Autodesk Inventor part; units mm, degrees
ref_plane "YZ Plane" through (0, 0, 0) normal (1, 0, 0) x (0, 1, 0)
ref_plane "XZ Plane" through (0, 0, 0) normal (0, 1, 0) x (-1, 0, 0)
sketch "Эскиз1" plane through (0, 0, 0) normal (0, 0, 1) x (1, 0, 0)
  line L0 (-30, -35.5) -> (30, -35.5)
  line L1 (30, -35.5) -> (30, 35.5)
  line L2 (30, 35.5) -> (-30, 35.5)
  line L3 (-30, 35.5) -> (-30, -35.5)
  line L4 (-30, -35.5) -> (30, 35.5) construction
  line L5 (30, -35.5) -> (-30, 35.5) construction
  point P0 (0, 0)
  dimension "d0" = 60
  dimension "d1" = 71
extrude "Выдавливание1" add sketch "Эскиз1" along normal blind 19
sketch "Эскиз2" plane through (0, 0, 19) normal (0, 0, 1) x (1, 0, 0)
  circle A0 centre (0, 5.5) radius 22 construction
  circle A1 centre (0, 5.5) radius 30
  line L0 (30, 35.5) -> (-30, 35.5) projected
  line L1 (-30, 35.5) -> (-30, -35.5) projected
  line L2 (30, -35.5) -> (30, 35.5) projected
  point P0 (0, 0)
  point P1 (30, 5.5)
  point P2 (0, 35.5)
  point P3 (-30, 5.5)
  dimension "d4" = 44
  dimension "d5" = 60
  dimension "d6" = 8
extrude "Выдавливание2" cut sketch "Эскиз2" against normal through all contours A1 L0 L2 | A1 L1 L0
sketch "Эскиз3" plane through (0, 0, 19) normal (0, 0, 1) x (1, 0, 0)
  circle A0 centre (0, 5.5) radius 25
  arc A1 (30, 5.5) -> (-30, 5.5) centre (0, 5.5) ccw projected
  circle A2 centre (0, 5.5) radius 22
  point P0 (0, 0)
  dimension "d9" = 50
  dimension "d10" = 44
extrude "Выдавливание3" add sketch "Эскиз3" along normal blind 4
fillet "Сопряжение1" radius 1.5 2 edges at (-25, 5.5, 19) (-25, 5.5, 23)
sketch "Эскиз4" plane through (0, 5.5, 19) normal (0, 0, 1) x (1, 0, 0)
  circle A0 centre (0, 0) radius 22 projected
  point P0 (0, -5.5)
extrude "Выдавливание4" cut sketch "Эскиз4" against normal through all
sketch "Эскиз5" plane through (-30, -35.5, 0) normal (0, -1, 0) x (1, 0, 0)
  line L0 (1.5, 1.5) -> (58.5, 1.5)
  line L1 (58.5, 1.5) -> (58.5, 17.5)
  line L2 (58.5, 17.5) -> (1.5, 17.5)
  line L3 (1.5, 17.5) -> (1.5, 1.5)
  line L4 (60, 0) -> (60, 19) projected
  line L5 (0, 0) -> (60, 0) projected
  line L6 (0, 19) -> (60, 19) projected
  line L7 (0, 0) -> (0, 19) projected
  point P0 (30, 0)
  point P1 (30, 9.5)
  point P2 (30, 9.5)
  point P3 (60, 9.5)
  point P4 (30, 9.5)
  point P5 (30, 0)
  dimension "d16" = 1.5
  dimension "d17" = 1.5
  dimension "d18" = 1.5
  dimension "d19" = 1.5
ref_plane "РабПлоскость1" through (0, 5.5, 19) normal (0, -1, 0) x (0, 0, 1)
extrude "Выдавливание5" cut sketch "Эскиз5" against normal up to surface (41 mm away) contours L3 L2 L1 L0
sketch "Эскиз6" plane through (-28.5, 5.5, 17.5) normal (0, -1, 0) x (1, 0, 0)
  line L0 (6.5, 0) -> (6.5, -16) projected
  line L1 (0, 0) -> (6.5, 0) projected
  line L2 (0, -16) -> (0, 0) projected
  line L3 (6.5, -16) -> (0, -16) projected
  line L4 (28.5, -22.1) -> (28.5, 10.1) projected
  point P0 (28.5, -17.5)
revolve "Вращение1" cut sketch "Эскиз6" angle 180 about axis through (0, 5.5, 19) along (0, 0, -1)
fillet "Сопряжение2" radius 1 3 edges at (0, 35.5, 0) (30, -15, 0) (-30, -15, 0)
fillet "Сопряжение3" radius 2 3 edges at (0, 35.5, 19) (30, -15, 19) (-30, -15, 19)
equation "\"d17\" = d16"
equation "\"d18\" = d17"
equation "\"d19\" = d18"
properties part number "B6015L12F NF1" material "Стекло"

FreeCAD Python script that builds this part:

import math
import FreeCAD as App
import Part
import Sketcher
from FreeCAD import Vector


def edges_at(feature, points):
    """Names of the edges that pass closest to the given points."""
    edges = feature.Shape.Edges
    near = lambda p: min(range(len(edges)), key=lambda i: edges[i].distToShape(Part.Vertex(*p))[0])
    return sorted({f"Edge{near(p) + 1}" for p in points})

doc = App.newDocument("Part")
body = doc.addObject("PartDesign::Body", "Body")

# Sketch on XY plane
sketch1 = body.newObject("Sketcher::SketchObject", "Sketch")
sketch1.AttachmentSupport = (doc.getObject("XY_Plane"), [""])
sketch1.MapMode = "FlatFace"
sketch1.addGeometry([
    Part.LineSegment(Vector(-30, 36, 0), Vector(-30, -36, 0)),
    Part.LineSegment(Vector(-30, -36, 0), Vector(30, -36, 0)),
    Part.LineSegment(Vector(30, -36, 0), Vector(30, 36, 0)),
    Part.LineSegment(Vector(30, 36, 0), Vector(-30, 36, 0)),
], False)
sketch1.addConstraint([
    Sketcher.Constraint("Coincident", 0, 2, 1, 1),
    Sketcher.Constraint("Coincident", 1, 2, 2, 1),
    Sketcher.Constraint("Coincident", 2, 2, 3, 1),
    Sketcher.Constraint("Coincident", 3, 2, 0, 1),
    Sketcher.Constraint("Vertical", 0),
    Sketcher.Constraint("Horizontal", 1),
    Sketcher.Constraint("Vertical", 2),
    Sketcher.Constraint("Horizontal", 3),
    Sketcher.Constraint("Symmetric", 0, 2, 2, 2, -1, 1),
    Sketcher.Constraint("DistanceX", 1, 1, 1, 2, 60.0),
    Sketcher.Constraint("DistanceY", 0, 2, 0, 1, 71.0),
])
pad1 = body.newObject("PartDesign::Pad", "Pad")
pad1.Profile = sketch1
pad1.Length = 19

# Sketch on XY plane
sketch2 = body.newObject("Sketcher::SketchObject", "Sketch001")
sketch2.AttachmentSupport = (doc.getObject("XY_Plane"), [""])
sketch2.MapMode = "FlatFace"
sketch2.AttachmentOffset = App.Placement(Vector(0, 0, 19), App.Rotation())
sketch2.addGeometry([
    Part.ArcOfCircle(Part.Circle(Vector(0, 6, 0), Vector(0, 0, 1), 30), math.radians(0), math.radians(90)),  # 0
    Part.LineSegment(Vector(30, 6, 0), Vector(30, 36, 0)),  # 1
    Part.LineSegment(Vector(30, 36, 0), Vector(0, 36, 0)),  # 2
    Part.ArcOfCircle(Part.Circle(Vector(0, 6, 0), Vector(0, 0, 1), 30), math.radians(90), math.radians(180)),  # 3
    Part.LineSegment(Vector(0, 36, 0), Vector(-30, 36, 0)),  # 4
    Part.LineSegment(Vector(-30, 36, 0), Vector(-30, 6, 0)),  # 5
], False)
sketch2.addConstraint([
    Sketcher.Constraint("Tangent", 0, 1, 1, 1),
    Sketcher.Constraint("Coincident", 1, 2, 2, 1),
    Sketcher.Constraint("Tangent", 2, 2, 0, 2),
    Sketcher.Constraint("Tangent", 3, 1, 4, 1),
    Sketcher.Constraint("Coincident", 4, 2, 5, 1),
    Sketcher.Constraint("Tangent", 5, 2, 3, 2),
    Sketcher.Constraint("Vertical", 1),
    Sketcher.Constraint("Horizontal", 2),
    Sketcher.Constraint("Horizontal", 4),
    Sketcher.Constraint("Vertical", 5),
    Sketcher.Constraint("Coincident", 3, 3, 0, 3),
    Sketcher.Constraint("Equal", 0, 3),
    Sketcher.Constraint("PointOnObject", 0, 3, -2),
    Sketcher.Constraint("Radius", 0, 30.0),
    Sketcher.Constraint("DistanceY", -1, 1, 0, 3, 5.5),
])
pocket1 = body.newObject("PartDesign::Pocket", "Pocket")
pocket1.Profile = sketch2
pocket1.Type = "ThroughAll"

# Sketch on XY plane
sketch3 = body.newObject("Sketcher::SketchObject", "Sketch002")
sketch3.AttachmentSupport = (doc.getObject("XY_Plane"), [""])
sketch3.MapMode = "FlatFace"
sketch3.AttachmentOffset = App.Placement(Vector(0, 0, 19), App.Rotation())
sketch3.addGeometry([
    Part.Circle(Vector(0, 6, 0), Vector(0, 0, 1), 25),
    Part.Circle(Vector(0, 6, 0), Vector(0, 0, 1), 22),
], False)
sketch3.addConstraint([
    Sketcher.Constraint("Coincident", 1, 3, 0, 3),
    Sketcher.Constraint("PointOnObject", 0, 3, -2),
    Sketcher.Constraint("Diameter", 0, 50.0),
    Sketcher.Constraint("Diameter", 1, 44.0),
    Sketcher.Constraint("DistanceY", -1, 1, 0, 3, 5.5),
])
pad2 = body.newObject("PartDesign::Pad", "Pad001")
pad2.Profile = sketch3
pad2.Length = 4
doc.recompute()

fillet = body.newObject("PartDesign::Fillet", "Fillet")
fillet.Base = (pad2, edges_at(pad2, [(-25, 5.5, 19), (-25, 5.5, 23)]))
fillet.Radius = 1.5

# Sketch on XY plane
sketch4 = body.newObject("Sketcher::SketchObject", "Sketch003")
sketch4.AttachmentSupport = (doc.getObject("XY_Plane"), [""])
sketch4.MapMode = "FlatFace"
sketch4.AttachmentOffset = App.Placement(Vector(0, 0, 19), App.Rotation())
sketch4.addGeometry(Part.Circle(Vector(0, 6, 0), Vector(0, 0, 1), 22), False)
sketch4.addConstraint([
    Sketcher.Constraint("PointOnObject", 0, 3, -2),
    Sketcher.Constraint("Diameter", 0, 44.0),
    Sketcher.Constraint("DistanceY", -1, 1, 0, 3, 5.5),
])
pocket2 = body.newObject("PartDesign::Pocket", "Pocket001")
pocket2.Profile = sketch4
pocket2.Type = "ThroughAll"

# Sketch on XZ plane
sketch5 = body.newObject("Sketcher::SketchObject", "Sketch004")
sketch5.AttachmentSupport = (doc.getObject("XZ_Plane"), [""])
sketch5.MapMode = "FlatFace"
sketch5.AttachmentOffset = App.Placement(Vector(0, 0, 35.5), App.Rotation())
sketch5.addGeometry([
    Part.LineSegment(Vector(-28, 18, 0), Vector(-28, 2, 0)),
    Part.LineSegment(Vector(-28, 2, 0), Vector(28, 2, 0)),
    Part.LineSegment(Vector(28, 2, 0), Vector(28, 18, 0)),
    Part.LineSegment(Vector(28, 18, 0), Vector(-28, 18, 0)),
], False)
sketch5.addConstraint([
    Sketcher.Constraint("Coincident", 0, 2, 1, 1),
    Sketcher.Constraint("Coincident", 1, 2, 2, 1),
    Sketcher.Constraint("Coincident", 2, 2, 3, 1),
    Sketcher.Constraint("Coincident", 3, 2, 0, 1),
    Sketcher.Constraint("Vertical", 0),
    Sketcher.Constraint("Horizontal", 1),
    Sketcher.Constraint("Vertical", 2),
    Sketcher.Constraint("Horizontal", 3),
    Sketcher.Constraint("DistanceY", -1, 1, 0, 2, 1.5),
    Sketcher.Constraint("DistanceX", 1, 1, 1, 2, 57.0),
    Sketcher.Constraint("DistanceY", 0, 2, 0, 1, 16.0),
    Sketcher.Constraint("DistanceX", 0, 2, -1, 1, 28.5),
])
pocket3 = body.newObject("PartDesign::Pocket", "Pocket002")
pocket3.Profile = sketch5
pocket3.Length = 41

# Sketch on XZ plane
sketch6 = body.newObject("Sketcher::SketchObject", "Sketch005")
sketch6.AttachmentSupport = (doc.getObject("XZ_Plane"), [""])
sketch6.MapMode = "FlatFace"
sketch6.AttachmentOffset = App.Placement(Vector(0, 0, -5.5), App.Rotation())
sketch6.addGeometry([
    Part.LineSegment(Vector(-22, 2, 0), Vector(-22, 18, 0)),
    Part.LineSegment(Vector(-22, 18, 0), Vector(-28, 18, 0)),
    Part.LineSegment(Vector(-28, 18, 0), Vector(-28, 2, 0)),
    Part.LineSegment(Vector(-28, 2, 0), Vector(-22, 2, 0)),
], False)
sketch6.addConstraint([
    Sketcher.Constraint("Coincident", 0, 2, 1, 1),
    Sketcher.Constraint("Coincident", 1, 2, 2, 1),
    Sketcher.Constraint("Coincident", 2, 2, 3, 1),
    Sketcher.Constraint("Coincident", 3, 2, 0, 1),
    Sketcher.Constraint("Vertical", 0),
    Sketcher.Constraint("Horizontal", 1),
    Sketcher.Constraint("Vertical", 2),
    Sketcher.Constraint("Horizontal", 3),
    Sketcher.Constraint("DistanceY", 0, 1, 0, 2, 16.0),
    Sketcher.Constraint("DistanceX", 1, 2, 1, 1, 6.5),
    Sketcher.Constraint("DistanceX", 0, 2, -1, 1, 22.0),
    Sketcher.Constraint("DistanceY", -1, 1, 0, 2, 17.5),
])
groove = body.newObject("PartDesign::Groove", "Groove")
groove.Profile = sketch6
groove.ReferenceAxis = (sketch6, ["V_Axis"])
groove.Angle = 180
groove.Reversed = True
doc.recompute()

fillet2 = body.newObject("PartDesign::Fillet", "Fillet001")
fillet2.Base = (groove, edges_at(groove, [(0, 35.5, 0), (30, -15, 0), (-30, -15, 0)]))
fillet2.Radius = 1
doc.recompute()

fillet3 = body.newObject("PartDesign::Fillet", "Fillet002")
fillet3.Base = (fillet2, edges_at(fillet2, [(0, 35.5, 19), (30, -15, 19), (-30, -15, 19)]))
fillet3.Radius = 2

doc.recompute()
